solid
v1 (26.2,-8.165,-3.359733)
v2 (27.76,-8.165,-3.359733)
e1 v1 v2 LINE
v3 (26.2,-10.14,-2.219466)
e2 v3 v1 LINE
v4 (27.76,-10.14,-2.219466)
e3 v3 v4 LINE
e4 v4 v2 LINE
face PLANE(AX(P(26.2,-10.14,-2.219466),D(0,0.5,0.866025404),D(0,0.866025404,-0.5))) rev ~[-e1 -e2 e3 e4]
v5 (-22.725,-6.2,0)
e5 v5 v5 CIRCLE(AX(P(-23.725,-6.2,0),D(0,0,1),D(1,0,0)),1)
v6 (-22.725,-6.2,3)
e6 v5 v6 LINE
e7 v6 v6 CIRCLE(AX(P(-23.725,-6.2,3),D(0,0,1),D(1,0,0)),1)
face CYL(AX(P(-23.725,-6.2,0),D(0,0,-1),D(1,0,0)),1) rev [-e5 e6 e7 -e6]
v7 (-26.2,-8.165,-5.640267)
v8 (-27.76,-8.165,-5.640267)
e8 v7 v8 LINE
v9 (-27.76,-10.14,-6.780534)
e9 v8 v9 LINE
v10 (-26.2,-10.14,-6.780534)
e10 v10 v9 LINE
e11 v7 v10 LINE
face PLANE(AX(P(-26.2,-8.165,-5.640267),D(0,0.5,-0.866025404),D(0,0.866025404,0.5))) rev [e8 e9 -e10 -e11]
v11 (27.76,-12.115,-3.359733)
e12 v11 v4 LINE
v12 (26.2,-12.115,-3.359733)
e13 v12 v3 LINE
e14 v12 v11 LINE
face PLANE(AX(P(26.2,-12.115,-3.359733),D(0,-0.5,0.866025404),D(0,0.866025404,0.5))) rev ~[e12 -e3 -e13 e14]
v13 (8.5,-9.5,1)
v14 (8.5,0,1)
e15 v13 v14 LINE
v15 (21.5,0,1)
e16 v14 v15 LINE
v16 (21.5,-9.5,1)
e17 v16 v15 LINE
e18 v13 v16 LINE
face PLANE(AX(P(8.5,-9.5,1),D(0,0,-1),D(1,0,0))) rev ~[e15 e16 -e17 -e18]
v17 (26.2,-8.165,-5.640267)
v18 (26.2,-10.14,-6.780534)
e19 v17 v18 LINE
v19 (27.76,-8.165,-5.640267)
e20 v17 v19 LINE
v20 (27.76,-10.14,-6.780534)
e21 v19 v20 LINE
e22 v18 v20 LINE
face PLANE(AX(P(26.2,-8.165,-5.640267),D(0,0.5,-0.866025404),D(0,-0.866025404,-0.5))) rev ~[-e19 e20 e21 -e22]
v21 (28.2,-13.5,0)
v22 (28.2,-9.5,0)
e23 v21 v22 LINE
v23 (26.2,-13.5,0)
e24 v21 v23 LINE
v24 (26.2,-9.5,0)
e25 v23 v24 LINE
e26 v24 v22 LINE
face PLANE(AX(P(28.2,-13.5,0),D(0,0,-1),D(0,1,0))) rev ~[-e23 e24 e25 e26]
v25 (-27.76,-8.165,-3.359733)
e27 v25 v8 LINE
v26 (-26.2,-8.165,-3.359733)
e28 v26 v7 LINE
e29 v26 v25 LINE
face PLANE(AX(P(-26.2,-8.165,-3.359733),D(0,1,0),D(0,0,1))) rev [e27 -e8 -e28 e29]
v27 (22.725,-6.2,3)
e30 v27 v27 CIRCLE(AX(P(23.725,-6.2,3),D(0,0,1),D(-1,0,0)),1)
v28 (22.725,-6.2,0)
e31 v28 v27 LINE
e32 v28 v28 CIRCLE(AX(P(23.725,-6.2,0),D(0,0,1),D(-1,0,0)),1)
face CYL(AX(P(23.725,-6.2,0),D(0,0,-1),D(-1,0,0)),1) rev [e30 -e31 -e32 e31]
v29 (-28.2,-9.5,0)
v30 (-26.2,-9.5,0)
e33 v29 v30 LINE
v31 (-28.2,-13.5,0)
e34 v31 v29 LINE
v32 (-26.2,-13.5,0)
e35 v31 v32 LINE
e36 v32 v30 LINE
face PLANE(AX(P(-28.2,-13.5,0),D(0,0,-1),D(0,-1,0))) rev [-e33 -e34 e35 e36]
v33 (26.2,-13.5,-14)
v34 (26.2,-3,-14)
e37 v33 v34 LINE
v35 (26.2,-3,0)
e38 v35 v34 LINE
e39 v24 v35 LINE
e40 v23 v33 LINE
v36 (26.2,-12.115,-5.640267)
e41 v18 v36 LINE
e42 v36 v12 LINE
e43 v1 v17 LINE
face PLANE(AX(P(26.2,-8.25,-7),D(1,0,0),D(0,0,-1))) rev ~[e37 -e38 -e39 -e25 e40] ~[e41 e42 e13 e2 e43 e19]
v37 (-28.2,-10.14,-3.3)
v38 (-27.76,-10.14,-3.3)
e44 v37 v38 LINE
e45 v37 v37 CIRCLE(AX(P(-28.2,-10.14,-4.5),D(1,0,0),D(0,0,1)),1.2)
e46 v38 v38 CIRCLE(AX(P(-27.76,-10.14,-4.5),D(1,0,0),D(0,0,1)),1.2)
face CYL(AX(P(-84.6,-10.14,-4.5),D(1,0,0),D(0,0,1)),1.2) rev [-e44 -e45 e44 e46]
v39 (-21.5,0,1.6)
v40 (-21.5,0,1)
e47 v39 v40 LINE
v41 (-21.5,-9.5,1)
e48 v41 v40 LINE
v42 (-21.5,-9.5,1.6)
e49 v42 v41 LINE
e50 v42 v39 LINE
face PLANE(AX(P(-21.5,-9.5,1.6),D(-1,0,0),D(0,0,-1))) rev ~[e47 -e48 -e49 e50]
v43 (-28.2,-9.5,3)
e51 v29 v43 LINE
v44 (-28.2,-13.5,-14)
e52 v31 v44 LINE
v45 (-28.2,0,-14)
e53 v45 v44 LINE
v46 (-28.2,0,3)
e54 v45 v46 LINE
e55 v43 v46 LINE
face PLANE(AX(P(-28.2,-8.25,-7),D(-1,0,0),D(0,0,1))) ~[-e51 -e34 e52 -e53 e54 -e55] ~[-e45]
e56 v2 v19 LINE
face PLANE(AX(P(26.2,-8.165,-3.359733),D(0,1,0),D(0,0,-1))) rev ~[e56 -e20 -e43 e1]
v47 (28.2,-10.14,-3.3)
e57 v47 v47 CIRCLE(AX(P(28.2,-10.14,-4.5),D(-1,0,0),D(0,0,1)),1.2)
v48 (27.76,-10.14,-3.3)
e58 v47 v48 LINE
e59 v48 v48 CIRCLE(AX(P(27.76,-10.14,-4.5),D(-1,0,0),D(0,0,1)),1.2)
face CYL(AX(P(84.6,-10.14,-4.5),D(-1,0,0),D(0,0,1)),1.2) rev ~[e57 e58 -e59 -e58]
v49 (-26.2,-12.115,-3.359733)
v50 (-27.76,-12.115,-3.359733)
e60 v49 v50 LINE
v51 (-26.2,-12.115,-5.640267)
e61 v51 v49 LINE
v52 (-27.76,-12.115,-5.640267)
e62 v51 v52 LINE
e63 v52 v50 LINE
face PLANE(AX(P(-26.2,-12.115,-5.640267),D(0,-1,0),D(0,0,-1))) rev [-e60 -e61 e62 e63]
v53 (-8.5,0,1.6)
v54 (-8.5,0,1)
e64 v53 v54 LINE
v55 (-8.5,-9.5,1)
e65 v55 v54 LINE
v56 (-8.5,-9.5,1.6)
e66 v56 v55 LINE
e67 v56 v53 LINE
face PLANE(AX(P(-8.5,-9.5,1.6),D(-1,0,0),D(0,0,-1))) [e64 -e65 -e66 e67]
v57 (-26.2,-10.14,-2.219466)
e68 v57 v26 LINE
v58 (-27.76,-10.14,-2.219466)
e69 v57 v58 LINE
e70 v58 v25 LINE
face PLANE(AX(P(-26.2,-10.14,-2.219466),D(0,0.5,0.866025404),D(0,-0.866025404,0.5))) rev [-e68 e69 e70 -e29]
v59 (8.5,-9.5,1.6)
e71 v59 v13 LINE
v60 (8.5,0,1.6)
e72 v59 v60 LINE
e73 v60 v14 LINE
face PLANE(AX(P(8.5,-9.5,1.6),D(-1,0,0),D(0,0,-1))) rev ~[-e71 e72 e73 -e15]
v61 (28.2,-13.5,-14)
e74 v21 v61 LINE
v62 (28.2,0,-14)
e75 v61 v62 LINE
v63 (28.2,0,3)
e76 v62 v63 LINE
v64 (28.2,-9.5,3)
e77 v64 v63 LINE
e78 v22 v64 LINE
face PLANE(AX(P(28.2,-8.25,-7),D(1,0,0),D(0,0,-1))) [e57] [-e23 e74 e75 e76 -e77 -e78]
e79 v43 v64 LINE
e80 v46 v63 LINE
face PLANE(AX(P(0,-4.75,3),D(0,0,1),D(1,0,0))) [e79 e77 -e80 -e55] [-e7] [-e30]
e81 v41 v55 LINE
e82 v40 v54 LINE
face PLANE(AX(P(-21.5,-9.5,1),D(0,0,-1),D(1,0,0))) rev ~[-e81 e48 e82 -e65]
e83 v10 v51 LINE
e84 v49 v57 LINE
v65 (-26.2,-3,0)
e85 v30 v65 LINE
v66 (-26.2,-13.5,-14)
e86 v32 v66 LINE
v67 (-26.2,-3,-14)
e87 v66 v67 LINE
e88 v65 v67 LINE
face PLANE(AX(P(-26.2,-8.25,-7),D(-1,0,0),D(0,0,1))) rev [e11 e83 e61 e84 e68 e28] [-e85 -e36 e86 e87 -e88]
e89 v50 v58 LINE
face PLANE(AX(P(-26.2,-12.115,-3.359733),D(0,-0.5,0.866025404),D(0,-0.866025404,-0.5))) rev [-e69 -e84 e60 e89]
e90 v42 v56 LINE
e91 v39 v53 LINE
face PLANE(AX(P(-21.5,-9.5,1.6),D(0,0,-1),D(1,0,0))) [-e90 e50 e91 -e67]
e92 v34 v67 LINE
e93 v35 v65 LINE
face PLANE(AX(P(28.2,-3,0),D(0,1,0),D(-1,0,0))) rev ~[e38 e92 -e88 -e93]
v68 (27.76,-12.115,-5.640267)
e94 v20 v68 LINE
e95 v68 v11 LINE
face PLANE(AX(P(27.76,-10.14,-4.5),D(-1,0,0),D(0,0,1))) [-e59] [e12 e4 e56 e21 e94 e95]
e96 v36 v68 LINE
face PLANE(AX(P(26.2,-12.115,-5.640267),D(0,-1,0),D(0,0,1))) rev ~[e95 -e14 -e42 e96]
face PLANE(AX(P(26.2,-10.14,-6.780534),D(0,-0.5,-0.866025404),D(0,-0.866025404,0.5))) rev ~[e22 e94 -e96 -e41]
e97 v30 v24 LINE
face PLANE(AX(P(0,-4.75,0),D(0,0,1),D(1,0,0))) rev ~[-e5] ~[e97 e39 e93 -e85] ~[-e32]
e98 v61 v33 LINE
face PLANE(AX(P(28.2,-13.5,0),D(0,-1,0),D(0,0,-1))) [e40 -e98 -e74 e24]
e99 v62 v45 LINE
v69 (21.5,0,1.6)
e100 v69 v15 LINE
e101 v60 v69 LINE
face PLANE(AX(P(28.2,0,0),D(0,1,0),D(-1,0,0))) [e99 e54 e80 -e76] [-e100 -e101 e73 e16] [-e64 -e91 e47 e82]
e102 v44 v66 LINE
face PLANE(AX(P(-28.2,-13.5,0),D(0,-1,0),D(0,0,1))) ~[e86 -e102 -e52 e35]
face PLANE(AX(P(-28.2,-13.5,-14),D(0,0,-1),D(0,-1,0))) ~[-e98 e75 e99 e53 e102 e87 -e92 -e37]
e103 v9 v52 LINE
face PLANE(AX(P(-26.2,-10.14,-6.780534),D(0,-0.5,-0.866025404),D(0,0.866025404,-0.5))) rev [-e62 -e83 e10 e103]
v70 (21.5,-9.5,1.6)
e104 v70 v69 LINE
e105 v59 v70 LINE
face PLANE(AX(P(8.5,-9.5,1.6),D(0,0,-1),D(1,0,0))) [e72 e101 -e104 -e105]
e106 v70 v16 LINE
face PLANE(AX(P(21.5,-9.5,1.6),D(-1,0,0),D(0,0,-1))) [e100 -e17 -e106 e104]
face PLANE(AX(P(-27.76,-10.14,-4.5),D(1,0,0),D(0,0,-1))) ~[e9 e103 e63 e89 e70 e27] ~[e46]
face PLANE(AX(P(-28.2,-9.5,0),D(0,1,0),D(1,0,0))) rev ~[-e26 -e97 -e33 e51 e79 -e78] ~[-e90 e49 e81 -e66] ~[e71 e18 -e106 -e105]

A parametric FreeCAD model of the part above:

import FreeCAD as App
import Part
import Sketcher
Q = App.Units.Quantity


def add_polygon(sketch, points):
    """Adds a closed chain of lines whose ends are joined by coincident constraints."""
    first, n = sketch.GeometryCount, len(points)
    for a, b in zip(points, points[1:] + points[:1]):
        sketch.addGeometry(Part.LineSegment(App.Vector(*a, 0), App.Vector(*b, 0)), False)
    for i in range(n):
        sketch.addConstraint(Sketcher.Constraint("Coincident", first + i, 2, first + (i + 1) % n, 1))

doc = App.newDocument("Part")
body = doc.addObject("PartDesign::Body", "Body")

sketch1 = body.newObject("Sketcher::SketchObject", "Sketch")
sketch1.AttachmentSupport = (doc.getObject("XY_Plane"), [""])
sketch1.MapMode = "FlatFace"
add_polygon(sketch1, [(-28.2, 0), (-28.2, -9.5), (28.2, -9.5), (28.2, 0)])
sketch1.addGeometry(Part.Circle(App.Vector(-23.7, -6.2, 0), App.Vector(0, 0, 1), 1), False)
sketch1.addGeometry(Part.Circle(App.Vector(23.7, -6.2, 0), App.Vector(0, 0, 1), 1), False)
sketch1.addConstraint([
    Sketcher.Constraint("Vertical", 0),
    Sketcher.Constraint("Horizontal", 1),
    Sketcher.Constraint("Vertical", 2),
    Sketcher.Constraint("Horizontal", 3),
    Sketcher.Constraint("Equal", 4, 5),
    Sketcher.Constraint("Symmetric", 2, 2, 3, 2, -1, 1),
    Sketcher.Constraint("Symmetric", 4, 3, 5, 3, -2),
    Sketcher.Constraint("Diameter", 4, 2.0),
    Sketcher.Constraint("DistanceX", 1, 1, 1, 2, 56.4),
    Sketcher.Constraint("DistanceY", 0, 2, 0, 1, 9.5),
    Sketcher.Constraint("DistanceY", 4, 3, -1, 1, 6.2),
    Sketcher.Constraint("DistanceX", 4, 3, 5, 3, 47.45),
])
pad1 = body.newObject("PartDesign::Pad", "Pad")
pad1.Profile = sketch1
pad1.Length = 3

sketch2 = body.newObject("Sketcher::SketchObject", "Sketch001")
sketch2.AttachmentSupport = (doc.getObject("XY_Plane"), [""])
sketch2.MapMode = "FlatFace"
add_polygon(sketch2, [(28.2, 0), (28.2, -3), (-28.2, -3), (-28.2, 0)])
sketch2.addConstraint([
    Sketcher.Constraint("Vertical", 0),
    Sketcher.Constraint("Horizontal", 1),
    Sketcher.Constraint("Vertical", 2),
    Sketcher.Constraint("Horizontal", 3),
    Sketcher.Constraint("Symmetric", 2, 2, 3, 2, -1, 1),
    Sketcher.Constraint("DistanceY", 0, 2, 0, 1, 3.0),
    Sketcher.Constraint("DistanceX", 1, 2, 1, 1, 56.4),
])
pad2 = body.newObject("PartDesign::Pad", "Pad001")
pad2.Profile = sketch2
pad2.Length = 14
pad2.Reversed = True

sketch3 = body.newObject("Sketcher::SketchObject", "Sketch002")
sketch3.AttachmentSupport = (doc.getObject("YZ_Plane"), [""])
sketch3.MapMode = "FlatFace"
sketch3.AttachmentOffset = App.Placement(App.Vector(0, 0, 28.2), App.Rotation())
add_polygon(sketch3, [(-3, 0), (-14, 0), (-14, -14), (-3, -14)])
sketch3.addConstraint([
    Sketcher.Constraint("Horizontal", 0),
    Sketcher.Constraint("Vertical", 1),
    Sketcher.Constraint("Horizontal", 2),
    Sketcher.Constraint("Vertical", 3),
    Sketcher.Constraint("PointOnObject", 0, 2, -1),
    Sketcher.Constraint("DistanceY", 1, 2, 1, 1, 14.0),
    Sketcher.Constraint("DistanceX", 0, 2, 0, 1, 10.5),
    Sketcher.Constraint("DistanceX", 2, 2, -1, 1, 3.0),
])
pad3 = body.newObject("PartDesign::Pad", "Pad002")
pad3.Profile = sketch3
pad3.Length = 2
pad3.Reversed = True

sketch4 = body.newObject("Sketcher::SketchObject", "Sketch003")
sketch4.AttachmentSupport = (doc.getObject("YZ_Plane"), [""])
sketch4.MapMode = "FlatFace"
sketch4.AttachmentOffset = App.Placement(App.Vector(0, 0, 28.2), App.Rotation())
sketch4.addGeometry(Part.Circle(App.Vector(-10.1, -4.5, 0), App.Vector(0, 0, 1), 1.2), False)
sketch4.addConstraint([
    Sketcher.Constraint("Diameter", 0, 2.4),
    Sketcher.Constraint("DistanceY", 0, 3, -1, 1, 4.5),
    Sketcher.Constraint("DistanceX", 0, 3, -1, 1, 10.14),
])
doc.recompute()
hole = body.newObject("PartDesign::Hole", "Hole")
hole.Profile = sketch4
hole.ThreadType = "None"
hole.Diameter = 2.4
hole.DepthType = "Dimension"
hole.Depth = 56.4
hole.DrillPoint = "Flat"

sketch5 = body.newObject("Sketcher::SketchObject", "Sketch004")
sketch5.AttachmentSupport = (doc.getObject("YZ_Plane"), [""])
sketch5.MapMode = "FlatFace"
sketch5.AttachmentOffset = App.Placement(App.Vector(0, 0, 26.2), App.Rotation())
add_polygon(sketch5, [(-8.2, -5.6), (-10.1, -6.8), (-12.1, -5.6), (-12.1, -3.4), (-10.1, -2.2), (-8.2, -3.4)])
sketch5.addConstraint([
    Sketcher.Constraint("Vertical", 2),
    Sketcher.Constraint("Vertical", 5),
    Sketcher.Constraint("Parallel", 0, 3),
    Sketcher.Constraint("Parallel", 1, 4),
    Sketcher.Constraint("Horizontal", 2, 2, 4, 2),
    Sketcher.Constraint("Horizontal", 1, 2, 5, 2),
    Sketcher.Constraint("Vertical", 0, 2, 3, 2),
    Sketcher.Constraint("Angle", 0, Q("-150 deg")),
    Sketcher.Constraint("DistanceX", 0, 2, -1, 1, 10.14),
    Sketcher.Constraint("DistanceX", 2, 2, 4, 2, 3.95),
    Sketcher.Constraint("DistanceY", 0, 2, 2, 2, 3.4208),
    Sketcher.Constraint("DistanceY", 0, 2, -1, 1, 6.780534),
])
pocket1 = body.newObject("PartDesign::Pocket", "Pocket")
pocket1.Profile = sketch5
pocket1.Length = 1.56
pocket1.Reversed = True
doc.recompute()

mirrored = body.newObject("PartDesign::Mirrored", "Mirrored")
mirrored.Originals = [pad3, hole, pocket1]
mirrored.MirrorPlane = (doc.getObject("YZ_Plane"), [""])
body.Tip = mirrored

sketch6 = body.newObject("Sketcher::SketchObject", "Sketch005")
sketch6.AttachmentSupport = (doc.getObject("XZ_Plane"), [""])
sketch6.MapMode = "FlatFace"
sketch6.AttachmentOffset = App.Placement(App.Vector(0, 0, 9.5), App.Rotation())
add_polygon(sketch6, [(8.5, 1), (8.5, 1.6), (21.5, 1.6), (21.5, 1)])
add_polygon(sketch6, [(-21.5, 1), (-21.5, 1.6), (-8.5, 1.6), (-8.5, 1)])
sketch6.addConstraint([
    Sketcher.Constraint("Vertical", 0),
    Sketcher.Constraint("Horizontal", 1),
    Sketcher.Constraint("Vertical", 2),
    Sketcher.Constraint("Horizontal", 3),
    Sketcher.Constraint("Vertical", 4),
    Sketcher.Constraint("Horizontal", 5),
    Sketcher.Constraint("Vertical", 6),
    Sketcher.Constraint("Horizontal", 7),
    Sketcher.Constraint("Symmetric", 1, 2, 4, 2, -2),
    Sketcher.Constraint("Symmetric", 3, 2, 6, 2, -2),
    Sketcher.Constraint("DistanceX", 1, 1, 1, 2, 13.0),
    Sketcher.Constraint("DistanceY", 0, 1, 0, 2, 0.6),
    Sketcher.Constraint("DistanceY", -1, 1, 2, 2, 1.0),
    Sketcher.Constraint("DistanceX", 4, 2, 0, 2, 30.0),
])
pocket2 = body.newObject("PartDesign::Pocket", "Pocket001")
pocket2.Profile = sketch6
pocket2.Length = 9.5

doc.recompute()
